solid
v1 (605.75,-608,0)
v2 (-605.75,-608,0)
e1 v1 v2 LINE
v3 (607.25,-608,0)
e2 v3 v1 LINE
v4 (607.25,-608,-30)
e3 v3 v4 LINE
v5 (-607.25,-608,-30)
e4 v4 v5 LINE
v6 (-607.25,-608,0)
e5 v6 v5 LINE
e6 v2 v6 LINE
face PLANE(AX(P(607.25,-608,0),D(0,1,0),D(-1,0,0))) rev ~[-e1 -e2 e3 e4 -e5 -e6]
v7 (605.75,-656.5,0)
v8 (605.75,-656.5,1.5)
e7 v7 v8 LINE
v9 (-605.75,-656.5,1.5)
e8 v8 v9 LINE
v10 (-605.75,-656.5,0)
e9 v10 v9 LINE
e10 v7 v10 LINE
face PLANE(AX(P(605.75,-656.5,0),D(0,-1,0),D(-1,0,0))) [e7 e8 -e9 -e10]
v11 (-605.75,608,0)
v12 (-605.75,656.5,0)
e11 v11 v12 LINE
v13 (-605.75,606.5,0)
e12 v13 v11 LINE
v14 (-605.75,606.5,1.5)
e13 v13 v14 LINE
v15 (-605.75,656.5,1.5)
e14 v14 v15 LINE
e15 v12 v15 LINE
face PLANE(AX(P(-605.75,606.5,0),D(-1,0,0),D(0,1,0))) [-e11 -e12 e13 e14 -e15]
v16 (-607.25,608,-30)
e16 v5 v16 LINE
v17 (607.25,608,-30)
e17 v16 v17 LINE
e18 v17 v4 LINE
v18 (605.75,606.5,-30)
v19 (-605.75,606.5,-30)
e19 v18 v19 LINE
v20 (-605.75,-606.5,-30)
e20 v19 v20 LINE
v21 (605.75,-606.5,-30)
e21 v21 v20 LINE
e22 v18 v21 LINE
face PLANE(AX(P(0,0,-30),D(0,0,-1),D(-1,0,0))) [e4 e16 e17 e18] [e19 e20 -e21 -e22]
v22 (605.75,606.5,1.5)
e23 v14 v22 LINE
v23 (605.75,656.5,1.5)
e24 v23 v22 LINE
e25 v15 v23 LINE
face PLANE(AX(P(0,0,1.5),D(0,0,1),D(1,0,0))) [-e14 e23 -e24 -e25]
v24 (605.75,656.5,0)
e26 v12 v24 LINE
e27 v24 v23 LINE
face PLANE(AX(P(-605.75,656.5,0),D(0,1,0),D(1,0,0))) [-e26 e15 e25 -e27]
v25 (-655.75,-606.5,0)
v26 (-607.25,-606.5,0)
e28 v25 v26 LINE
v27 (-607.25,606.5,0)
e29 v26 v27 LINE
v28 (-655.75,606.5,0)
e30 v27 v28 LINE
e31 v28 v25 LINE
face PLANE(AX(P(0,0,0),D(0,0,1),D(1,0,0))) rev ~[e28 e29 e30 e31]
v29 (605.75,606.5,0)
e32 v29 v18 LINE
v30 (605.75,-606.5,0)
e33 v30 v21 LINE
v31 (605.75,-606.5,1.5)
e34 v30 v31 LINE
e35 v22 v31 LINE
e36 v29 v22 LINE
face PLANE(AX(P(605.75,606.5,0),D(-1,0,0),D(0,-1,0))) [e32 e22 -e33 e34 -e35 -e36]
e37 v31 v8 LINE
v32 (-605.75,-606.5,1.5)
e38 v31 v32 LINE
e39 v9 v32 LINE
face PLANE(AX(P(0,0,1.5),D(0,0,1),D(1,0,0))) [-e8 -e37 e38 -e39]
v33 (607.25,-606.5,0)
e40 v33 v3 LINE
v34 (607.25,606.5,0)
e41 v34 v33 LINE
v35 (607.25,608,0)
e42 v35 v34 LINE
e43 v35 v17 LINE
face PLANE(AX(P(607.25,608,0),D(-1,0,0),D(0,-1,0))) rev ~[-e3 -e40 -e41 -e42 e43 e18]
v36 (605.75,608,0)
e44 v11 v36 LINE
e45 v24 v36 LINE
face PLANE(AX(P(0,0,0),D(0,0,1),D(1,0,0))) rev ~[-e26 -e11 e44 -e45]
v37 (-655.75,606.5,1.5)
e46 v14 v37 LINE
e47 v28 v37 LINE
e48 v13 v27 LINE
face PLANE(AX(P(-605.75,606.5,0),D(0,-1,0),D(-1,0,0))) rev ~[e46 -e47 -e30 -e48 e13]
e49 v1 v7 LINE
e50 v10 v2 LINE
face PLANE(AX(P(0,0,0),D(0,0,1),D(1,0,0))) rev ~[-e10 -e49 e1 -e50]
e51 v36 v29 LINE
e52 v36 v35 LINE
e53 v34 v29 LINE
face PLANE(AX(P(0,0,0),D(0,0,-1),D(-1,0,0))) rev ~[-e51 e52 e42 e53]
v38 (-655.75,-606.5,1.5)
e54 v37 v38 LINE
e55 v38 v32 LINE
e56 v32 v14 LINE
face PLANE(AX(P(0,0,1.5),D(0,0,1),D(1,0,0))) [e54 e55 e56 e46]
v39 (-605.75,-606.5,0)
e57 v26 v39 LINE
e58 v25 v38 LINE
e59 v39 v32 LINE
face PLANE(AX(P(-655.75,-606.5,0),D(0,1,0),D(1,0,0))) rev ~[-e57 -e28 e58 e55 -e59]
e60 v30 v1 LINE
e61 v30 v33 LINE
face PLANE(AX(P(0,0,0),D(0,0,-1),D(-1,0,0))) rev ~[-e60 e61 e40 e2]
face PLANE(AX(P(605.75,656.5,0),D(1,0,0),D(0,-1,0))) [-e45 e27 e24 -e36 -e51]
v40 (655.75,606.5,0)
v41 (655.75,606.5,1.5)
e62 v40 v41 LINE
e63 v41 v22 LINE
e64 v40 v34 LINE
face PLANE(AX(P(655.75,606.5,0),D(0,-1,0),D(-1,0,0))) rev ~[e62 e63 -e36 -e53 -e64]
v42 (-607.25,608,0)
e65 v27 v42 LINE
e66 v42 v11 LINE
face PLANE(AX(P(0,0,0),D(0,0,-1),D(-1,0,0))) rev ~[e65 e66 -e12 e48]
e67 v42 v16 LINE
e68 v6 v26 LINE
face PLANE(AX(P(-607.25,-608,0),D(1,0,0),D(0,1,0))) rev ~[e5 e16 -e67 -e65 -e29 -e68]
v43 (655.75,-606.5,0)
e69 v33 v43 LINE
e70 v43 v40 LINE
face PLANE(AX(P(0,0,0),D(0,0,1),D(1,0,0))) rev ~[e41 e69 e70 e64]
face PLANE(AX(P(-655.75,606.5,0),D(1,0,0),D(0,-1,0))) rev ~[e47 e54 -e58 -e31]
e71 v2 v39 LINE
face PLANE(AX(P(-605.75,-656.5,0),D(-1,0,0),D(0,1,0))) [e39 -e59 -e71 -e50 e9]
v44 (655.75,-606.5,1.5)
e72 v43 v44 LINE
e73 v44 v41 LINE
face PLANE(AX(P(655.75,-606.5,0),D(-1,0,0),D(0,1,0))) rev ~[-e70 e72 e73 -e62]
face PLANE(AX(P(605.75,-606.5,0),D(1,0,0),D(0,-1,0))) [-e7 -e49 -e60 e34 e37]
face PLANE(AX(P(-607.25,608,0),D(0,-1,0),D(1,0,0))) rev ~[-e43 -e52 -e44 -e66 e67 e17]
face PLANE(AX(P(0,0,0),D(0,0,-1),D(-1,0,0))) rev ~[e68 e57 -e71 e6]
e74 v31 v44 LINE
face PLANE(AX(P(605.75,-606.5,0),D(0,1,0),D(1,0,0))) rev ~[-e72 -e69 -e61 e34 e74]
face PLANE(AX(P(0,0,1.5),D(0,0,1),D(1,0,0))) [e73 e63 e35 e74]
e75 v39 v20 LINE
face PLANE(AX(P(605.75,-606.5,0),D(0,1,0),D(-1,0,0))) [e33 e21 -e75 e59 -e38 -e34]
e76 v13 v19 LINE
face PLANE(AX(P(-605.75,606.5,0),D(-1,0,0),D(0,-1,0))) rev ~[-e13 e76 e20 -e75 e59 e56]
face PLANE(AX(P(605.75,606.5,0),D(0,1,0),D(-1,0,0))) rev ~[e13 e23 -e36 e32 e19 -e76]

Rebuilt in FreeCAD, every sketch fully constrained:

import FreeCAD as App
import Part
import Sketcher

V = App.Vector
Q = App.Units.Quantity

doc = App.newDocument("Part")
params = doc.addObject("Spreadsheet::Sheet", "Params")
for row, (alias, value) in enumerate([
    ("sketch1_width", "50 mm"),
    ("sketch1_height", "1213 mm"),
    ("sketch1_width2", "1211.5 mm"),
    ("pad1_length", "1.5 mm"),
    ("sketch2_height", "1216 mm"),
    ("sketch2_width", "1214.5 mm"),
    ("pad2_length", "30 mm"),
], start=1):
    params.set(f"A{row}", alias)
    params.set(f"B{row}", "=" + value)
    params.setAlias(f"B{row}", alias)

body = doc.addObject("PartDesign::Body", "Body")
body.AllowCompound = True

sketch1 = doc.addObject("Sketcher::SketchObject", "Sketch")
body.addObject(sketch1)
sketch1.AttachmentSupport = (doc.XY_Plane, [""])
sketch1.MapMode = "FlatFace"
sketch1.addGeometry(Part.LineSegment(V(605.75, -656.5, 0), V(605.75, -606.5, 0)), False)
sketch1.addGeometry(Part.LineSegment(V(605.75, -606.5, 0), V(-605.75, -606.5, 0)), False)
sketch1.addGeometry(Part.LineSegment(V(-605.75, -606.5, 0), V(-605.75, -656.5, 0)), False)
sketch1.addGeometry(Part.LineSegment(V(-605.75, -656.5, 0), V(605.75, -656.5, 0)), False)
sketch1.addGeometry(Part.LineSegment(V(605.75, 606.5, 0), V(605.75, -606.5, 0)), False)
sketch1.addGeometry(Part.LineSegment(V(605.75, -606.5, 0), V(655.75, -606.5, 0)), False)
sketch1.addGeometry(Part.LineSegment(V(655.75, -606.5, 0), V(655.75, 606.5, 0)), False)
sketch1.addGeometry(Part.LineSegment(V(655.75, 606.5, 0), V(605.75, 606.5, 0)), False)
sketch1.addGeometry(Part.LineSegment(V(-655.75, -606.5, 0), V(-605.75, -606.5, 0)), False)
sketch1.addGeometry(Part.LineSegment(V(-605.75, -606.5, 0), V(-605.75, 606.5, 0)), False)
sketch1.addGeometry(Part.LineSegment(V(-605.75, 606.5, 0), V(-655.75, 606.5, 0)), False)
sketch1.addGeometry(Part.LineSegment(V(-655.75, 606.5, 0), V(-655.75, -606.5, 0)), False)
sketch1.addGeometry(Part.LineSegment(V(-605.75, 606.5, 0), V(605.75, 606.5, 0)), False)
sketch1.addGeometry(Part.LineSegment(V(605.75, 606.5, 0), V(605.75, 656.5, 0)), False)
sketch1.addGeometry(Part.LineSegment(V(605.75, 656.5, 0), V(-605.75, 656.5, 0)), False)
sketch1.addGeometry(Part.LineSegment(V(-605.75, 656.5, 0), V(-605.75, 606.5, 0)), False)
sketch1.addConstraint(Sketcher.Constraint("Coincident", 0, 2, 1, 1))
sketch1.addConstraint(Sketcher.Constraint("Coincident", 1, 2, 2, 1))
sketch1.addConstraint(Sketcher.Constraint("Coincident", 2, 2, 3, 1))
sketch1.addConstraint(Sketcher.Constraint("Coincident", 3, 2, 0, 1))
sketch1.addConstraint(Sketcher.Constraint("Coincident", 4, 2, 5, 1))
sketch1.addConstraint(Sketcher.Constraint("Coincident", 5, 2, 6, 1))
sketch1.addConstraint(Sketcher.Constraint("Coincident", 6, 2, 7, 1))
sketch1.addConstraint(Sketcher.Constraint("Coincident", 7, 2, 4, 1))
sketch1.addConstraint(Sketcher.Constraint("Coincident", 8, 2, 9, 1))
sketch1.addConstraint(Sketcher.Constraint("Coincident", 9, 2, 10, 1))
sketch1.addConstraint(Sketcher.Constraint("Coincident", 10, 2, 11, 1))
sketch1.addConstraint(Sketcher.Constraint("Coincident", 11, 2, 8, 1))
sketch1.addConstraint(Sketcher.Constraint("Coincident", 12, 2, 13, 1))
sketch1.addConstraint(Sketcher.Constraint("Coincident", 13, 2, 14, 1))
sketch1.addConstraint(Sketcher.Constraint("Coincident", 14, 2, 15, 1))
sketch1.addConstraint(Sketcher.Constraint("Coincident", 15, 2, 12, 1))
sketch1.addConstraint(Sketcher.Constraint("Vertical", 0))
sketch1.addConstraint(Sketcher.Constraint("Horizontal", 1))
sketch1.addConstraint(Sketcher.Constraint("Vertical", 2))
sketch1.addConstraint(Sketcher.Constraint("Horizontal", 3))
sketch1.addConstraint(Sketcher.Constraint("Vertical", 4))
sketch1.addConstraint(Sketcher.Constraint("Horizontal", 5))
sketch1.addConstraint(Sketcher.Constraint("Vertical", 6))
sketch1.addConstraint(Sketcher.Constraint("Horizontal", 7))
sketch1.addConstraint(Sketcher.Constraint("Horizontal", 8))
sketch1.addConstraint(Sketcher.Constraint("Vertical", 9))
sketch1.addConstraint(Sketcher.Constraint("Horizontal", 10))
sketch1.addConstraint(Sketcher.Constraint("Vertical", 11))
sketch1.addConstraint(Sketcher.Constraint("Horizontal", 12))
sketch1.addConstraint(Sketcher.Constraint("Vertical", 13))
sketch1.addConstraint(Sketcher.Constraint("Horizontal", 14))
sketch1.addConstraint(Sketcher.Constraint("Vertical", 15))
sketch1.addConstraint(Sketcher.Constraint("Coincident", 4, 2, 0, 2))
sketch1.addConstraint(Sketcher.Constraint("Coincident", 8, 2, 1, 2))
sketch1.addConstraint(Sketcher.Constraint("Coincident", 12, 2, 7, 2))
sketch1.addConstraint(Sketcher.Constraint("Coincident", 15, 2, 9, 2))
sketch1.addConstraint(Sketcher.Constraint("Symmetric", 1, 2, 7, 2, -1, 1))
sketch1.addConstraint(Sketcher.Constraint("Equal", 7, 8))
sketch1.addConstraint(Sketcher.Constraint("Equal", 10, 0))
sketch1.addConstraint(Sketcher.Constraint("Equal", 2, 13))
sketch1.addConstraint(Sketcher.Constraint("DistanceX", 5, 1, 5, 2, Q("50 mm")))
sketch1.addConstraint(Sketcher.Constraint("DistanceY", 4, 2, 4, 1, Q("1213 mm")))
sketch1.addConstraint(Sketcher.Constraint("DistanceX", 1, 2, 1, 1, Q("1211.5 mm")))
sketch1.setExpression("Constraints[40]", "Params.sketch1_width")
sketch1.setExpression("Constraints[41]", "Params.sketch1_height")
sketch1.setExpression("Constraints[42]", "Params.sketch1_width2")
pad1 = doc.addObject("PartDesign::Pad", "Pad")
body.addObject(pad1)
pad1.Profile = sketch1
pad1.setExpression("Length", "Params.pad1_length")

sketch2 = doc.addObject("Sketcher::SketchObject", "Sketch001")
body.addObject(sketch2)
sketch2.AttachmentSupport = (doc.XY_Plane, [""])
sketch2.MapMode = "FlatFace"
sketch2.addGeometry(Part.LineSegment(V(-607.25, -608, 0), V(-607.25, 608, 0)), False)
sketch2.addGeometry(Part.LineSegment(V(-607.25, 608, 0), V(607.25, 608, 0)), False)
sketch2.addGeometry(Part.LineSegment(V(607.25, 608, 0), V(607.25, -608, 0)), False)
sketch2.addGeometry(Part.LineSegment(V(607.25, -608, 0), V(-607.25, -608, 0)), False)
sketch2.addGeometry(Part.LineSegment(V(605.75, -606.5, 0), V(605.75, 606.5, 0)), False)
sketch2.addGeometry(Part.LineSegment(V(605.75, 606.5, 0), V(-605.75, 606.5, 0)), False)
sketch2.addGeometry(Part.LineSegment(V(-605.75, 606.5, 0), V(-605.75, -606.5, 0)), False)
sketch2.addGeometry(Part.LineSegment(V(-605.75, -606.5, 0), V(605.75, -606.5, 0)), False)
sketch2.addConstraint(Sketcher.Constraint("Coincident", 0, 2, 1, 1))
sketch2.addConstraint(Sketcher.Constraint("Coincident", 1, 2, 2, 1))
sketch2.addConstraint(Sketcher.Constraint("Coincident", 2, 2, 3, 1))
sketch2.addConstraint(Sketcher.Constraint("Coincident", 3, 2, 0, 1))
sketch2.addConstraint(Sketcher.Constraint("Coincident", 4, 2, 5, 1))
sketch2.addConstraint(Sketcher.Constraint("Coincident", 5, 2, 6, 1))
sketch2.addConstraint(Sketcher.Constraint("Coincident", 6, 2, 7, 1))
sketch2.addConstraint(Sketcher.Constraint("Coincident", 7, 2, 4, 1))
sketch2.addConstraint(Sketcher.Constraint("Vertical", 0))
sketch2.addConstraint(Sketcher.Constraint("Horizontal", 1))
sketch2.addConstraint(Sketcher.Constraint("Vertical", 2))
sketch2.addConstraint(Sketcher.Constraint("Horizontal", 3))
sketch2.addConstraint(Sketcher.Constraint("Vertical", 4))
sketch2.addConstraint(Sketcher.Constraint("Horizontal", 5))
sketch2.addConstraint(Sketcher.Constraint("Vertical", 6))
sketch2.addConstraint(Sketcher.Constraint("Horizontal", 7))
sketch2.addConstraint(Sketcher.Constraint("Symmetric", 0, 2, 2, 2, -1, 1))
sketch2.addConstraint(Sketcher.Constraint("Symmetric", 4, 2, 6, 2, -1, 1))
sketch2.addConstraint(Sketcher.Constraint("DistanceX", 4, 2, 1, 2, Q("1.5 mm")))
sketch2.addConstraint(Sketcher.Constraint("DistanceY", 4, 2, 1, 2, Q("1.5 mm")))
sketch2.addConstraint(Sketcher.Constraint("DistanceY", 0, 1, 0, 2, Q("1216 mm")))
sketch2.addConstraint(Sketcher.Constraint("DistanceX", 1, 1, 1, 2, Q("1214.5 mm")))
sketch2.setExpression("Constraints[20]", "Params.sketch2_height")
sketch2.setExpression("Constraints[21]", "Params.sketch2_width")
pad2 = doc.addObject("PartDesign::Pad", "Pad001")
body.addObject(pad2)
pad2.Profile = sketch2
pad2.setExpression("Length", "Params.pad2_length")
pad2.Reversed = True

doc.recompute()
